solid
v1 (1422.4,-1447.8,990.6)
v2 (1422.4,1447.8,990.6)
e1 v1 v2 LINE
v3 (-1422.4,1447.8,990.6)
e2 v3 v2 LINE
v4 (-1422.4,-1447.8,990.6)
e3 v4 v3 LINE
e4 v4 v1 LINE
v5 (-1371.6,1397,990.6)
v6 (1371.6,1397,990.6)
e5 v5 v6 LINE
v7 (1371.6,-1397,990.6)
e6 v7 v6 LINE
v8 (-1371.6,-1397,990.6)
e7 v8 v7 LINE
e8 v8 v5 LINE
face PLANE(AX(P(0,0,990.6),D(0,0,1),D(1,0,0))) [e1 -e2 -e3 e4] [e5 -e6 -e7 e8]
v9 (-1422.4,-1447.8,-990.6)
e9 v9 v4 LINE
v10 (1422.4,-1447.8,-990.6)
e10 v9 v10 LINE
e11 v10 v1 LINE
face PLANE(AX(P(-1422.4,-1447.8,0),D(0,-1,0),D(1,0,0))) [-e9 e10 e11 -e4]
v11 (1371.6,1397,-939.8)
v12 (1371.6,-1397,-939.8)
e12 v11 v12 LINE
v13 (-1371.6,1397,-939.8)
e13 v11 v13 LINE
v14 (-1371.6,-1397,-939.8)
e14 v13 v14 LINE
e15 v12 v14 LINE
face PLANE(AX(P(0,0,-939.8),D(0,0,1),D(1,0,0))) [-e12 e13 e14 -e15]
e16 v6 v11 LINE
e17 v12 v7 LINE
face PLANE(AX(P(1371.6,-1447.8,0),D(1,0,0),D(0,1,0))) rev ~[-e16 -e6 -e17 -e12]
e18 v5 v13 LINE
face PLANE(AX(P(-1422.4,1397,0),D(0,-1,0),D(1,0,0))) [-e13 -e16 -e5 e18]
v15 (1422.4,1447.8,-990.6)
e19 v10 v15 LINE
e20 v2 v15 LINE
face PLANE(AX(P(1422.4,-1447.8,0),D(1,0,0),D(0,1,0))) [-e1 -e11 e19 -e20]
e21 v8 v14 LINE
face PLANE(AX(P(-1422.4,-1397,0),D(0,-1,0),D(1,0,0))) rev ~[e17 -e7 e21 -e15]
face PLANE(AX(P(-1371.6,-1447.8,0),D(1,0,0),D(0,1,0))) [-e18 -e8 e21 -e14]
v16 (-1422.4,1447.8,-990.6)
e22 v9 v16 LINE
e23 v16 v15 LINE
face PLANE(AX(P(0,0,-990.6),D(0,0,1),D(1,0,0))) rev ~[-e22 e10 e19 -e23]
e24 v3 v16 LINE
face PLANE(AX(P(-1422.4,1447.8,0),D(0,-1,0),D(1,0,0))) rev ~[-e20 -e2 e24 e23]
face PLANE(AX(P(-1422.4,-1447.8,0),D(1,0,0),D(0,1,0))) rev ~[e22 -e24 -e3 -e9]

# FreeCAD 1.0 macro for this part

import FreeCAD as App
import Part
import Sketcher
from FreeCAD import Vector
Q = App.Units.Quantity


def faces_at(feature, points):
    """Names of the faces that lie closest to the given points."""
    faces = feature.Shape.Faces
    near = lambda p: min(range(len(faces)), key=lambda i: faces[i].distToShape(Part.Vertex(*p))[0])
    return sorted({f"Face{near(p) + 1}" for p in points})


def add_polygon(sketch, points):
    """Adds a closed chain of lines whose ends are joined by coincident constraints."""
    first, n = sketch.GeometryCount, len(points)
    for a, b in zip(points, points[1:] + points[:1]):
        sketch.addGeometry(Part.LineSegment(App.Vector(*a, 0), App.Vector(*b, 0)), False)
    for i in range(n):
        sketch.addConstraint(Sketcher.Constraint("Coincident", first + i, 2, first + (i + 1) % n, 1))

doc = App.newDocument("Part")
body = doc.addObject("PartDesign::Body", "Body")

sketch1 = body.newObject("Sketcher::SketchObject", "Sketch")
sketch1.AttachmentSupport = (doc.getObject("XY_Plane"), [""])
sketch1.MapMode = "FlatFace"
add_polygon(sketch1, [(-1422.4, 1447.8), (-1422.4, -1447.8), (1422.4, -1447.8), (1422.4, 1447.8)])
sketch1.addConstraint([
    Sketcher.Constraint("Vertical", 0),
    Sketcher.Constraint("Horizontal", 1),
    Sketcher.Constraint("Vertical", 2),
    Sketcher.Constraint("Horizontal", 3),
    Sketcher.Constraint("Symmetric", 0, 2, 2, 2, -1, 1),
    Sketcher.Constraint("DistanceX", 1, 1, 1, 2, Q("112 in")),
    Sketcher.Constraint("DistanceY", 0, 2, 0, 1, Q("114 in")),
])
pad1 = body.newObject("PartDesign::Pad", "Pad")
pad1.Profile = sketch1
pad1.Length = Q("78 in")
pad1.Midplane = True
doc.recompute()

thickness = body.newObject("PartDesign::Thickness", "Thickness")
thickness.Base = (pad1, faces_at(pad1, [(0, 0, 990.6)]))
thickness.Value = Q("2 in")
thickness.Reversed = True
thickness.Join = "Arc"

doc.recompute()
